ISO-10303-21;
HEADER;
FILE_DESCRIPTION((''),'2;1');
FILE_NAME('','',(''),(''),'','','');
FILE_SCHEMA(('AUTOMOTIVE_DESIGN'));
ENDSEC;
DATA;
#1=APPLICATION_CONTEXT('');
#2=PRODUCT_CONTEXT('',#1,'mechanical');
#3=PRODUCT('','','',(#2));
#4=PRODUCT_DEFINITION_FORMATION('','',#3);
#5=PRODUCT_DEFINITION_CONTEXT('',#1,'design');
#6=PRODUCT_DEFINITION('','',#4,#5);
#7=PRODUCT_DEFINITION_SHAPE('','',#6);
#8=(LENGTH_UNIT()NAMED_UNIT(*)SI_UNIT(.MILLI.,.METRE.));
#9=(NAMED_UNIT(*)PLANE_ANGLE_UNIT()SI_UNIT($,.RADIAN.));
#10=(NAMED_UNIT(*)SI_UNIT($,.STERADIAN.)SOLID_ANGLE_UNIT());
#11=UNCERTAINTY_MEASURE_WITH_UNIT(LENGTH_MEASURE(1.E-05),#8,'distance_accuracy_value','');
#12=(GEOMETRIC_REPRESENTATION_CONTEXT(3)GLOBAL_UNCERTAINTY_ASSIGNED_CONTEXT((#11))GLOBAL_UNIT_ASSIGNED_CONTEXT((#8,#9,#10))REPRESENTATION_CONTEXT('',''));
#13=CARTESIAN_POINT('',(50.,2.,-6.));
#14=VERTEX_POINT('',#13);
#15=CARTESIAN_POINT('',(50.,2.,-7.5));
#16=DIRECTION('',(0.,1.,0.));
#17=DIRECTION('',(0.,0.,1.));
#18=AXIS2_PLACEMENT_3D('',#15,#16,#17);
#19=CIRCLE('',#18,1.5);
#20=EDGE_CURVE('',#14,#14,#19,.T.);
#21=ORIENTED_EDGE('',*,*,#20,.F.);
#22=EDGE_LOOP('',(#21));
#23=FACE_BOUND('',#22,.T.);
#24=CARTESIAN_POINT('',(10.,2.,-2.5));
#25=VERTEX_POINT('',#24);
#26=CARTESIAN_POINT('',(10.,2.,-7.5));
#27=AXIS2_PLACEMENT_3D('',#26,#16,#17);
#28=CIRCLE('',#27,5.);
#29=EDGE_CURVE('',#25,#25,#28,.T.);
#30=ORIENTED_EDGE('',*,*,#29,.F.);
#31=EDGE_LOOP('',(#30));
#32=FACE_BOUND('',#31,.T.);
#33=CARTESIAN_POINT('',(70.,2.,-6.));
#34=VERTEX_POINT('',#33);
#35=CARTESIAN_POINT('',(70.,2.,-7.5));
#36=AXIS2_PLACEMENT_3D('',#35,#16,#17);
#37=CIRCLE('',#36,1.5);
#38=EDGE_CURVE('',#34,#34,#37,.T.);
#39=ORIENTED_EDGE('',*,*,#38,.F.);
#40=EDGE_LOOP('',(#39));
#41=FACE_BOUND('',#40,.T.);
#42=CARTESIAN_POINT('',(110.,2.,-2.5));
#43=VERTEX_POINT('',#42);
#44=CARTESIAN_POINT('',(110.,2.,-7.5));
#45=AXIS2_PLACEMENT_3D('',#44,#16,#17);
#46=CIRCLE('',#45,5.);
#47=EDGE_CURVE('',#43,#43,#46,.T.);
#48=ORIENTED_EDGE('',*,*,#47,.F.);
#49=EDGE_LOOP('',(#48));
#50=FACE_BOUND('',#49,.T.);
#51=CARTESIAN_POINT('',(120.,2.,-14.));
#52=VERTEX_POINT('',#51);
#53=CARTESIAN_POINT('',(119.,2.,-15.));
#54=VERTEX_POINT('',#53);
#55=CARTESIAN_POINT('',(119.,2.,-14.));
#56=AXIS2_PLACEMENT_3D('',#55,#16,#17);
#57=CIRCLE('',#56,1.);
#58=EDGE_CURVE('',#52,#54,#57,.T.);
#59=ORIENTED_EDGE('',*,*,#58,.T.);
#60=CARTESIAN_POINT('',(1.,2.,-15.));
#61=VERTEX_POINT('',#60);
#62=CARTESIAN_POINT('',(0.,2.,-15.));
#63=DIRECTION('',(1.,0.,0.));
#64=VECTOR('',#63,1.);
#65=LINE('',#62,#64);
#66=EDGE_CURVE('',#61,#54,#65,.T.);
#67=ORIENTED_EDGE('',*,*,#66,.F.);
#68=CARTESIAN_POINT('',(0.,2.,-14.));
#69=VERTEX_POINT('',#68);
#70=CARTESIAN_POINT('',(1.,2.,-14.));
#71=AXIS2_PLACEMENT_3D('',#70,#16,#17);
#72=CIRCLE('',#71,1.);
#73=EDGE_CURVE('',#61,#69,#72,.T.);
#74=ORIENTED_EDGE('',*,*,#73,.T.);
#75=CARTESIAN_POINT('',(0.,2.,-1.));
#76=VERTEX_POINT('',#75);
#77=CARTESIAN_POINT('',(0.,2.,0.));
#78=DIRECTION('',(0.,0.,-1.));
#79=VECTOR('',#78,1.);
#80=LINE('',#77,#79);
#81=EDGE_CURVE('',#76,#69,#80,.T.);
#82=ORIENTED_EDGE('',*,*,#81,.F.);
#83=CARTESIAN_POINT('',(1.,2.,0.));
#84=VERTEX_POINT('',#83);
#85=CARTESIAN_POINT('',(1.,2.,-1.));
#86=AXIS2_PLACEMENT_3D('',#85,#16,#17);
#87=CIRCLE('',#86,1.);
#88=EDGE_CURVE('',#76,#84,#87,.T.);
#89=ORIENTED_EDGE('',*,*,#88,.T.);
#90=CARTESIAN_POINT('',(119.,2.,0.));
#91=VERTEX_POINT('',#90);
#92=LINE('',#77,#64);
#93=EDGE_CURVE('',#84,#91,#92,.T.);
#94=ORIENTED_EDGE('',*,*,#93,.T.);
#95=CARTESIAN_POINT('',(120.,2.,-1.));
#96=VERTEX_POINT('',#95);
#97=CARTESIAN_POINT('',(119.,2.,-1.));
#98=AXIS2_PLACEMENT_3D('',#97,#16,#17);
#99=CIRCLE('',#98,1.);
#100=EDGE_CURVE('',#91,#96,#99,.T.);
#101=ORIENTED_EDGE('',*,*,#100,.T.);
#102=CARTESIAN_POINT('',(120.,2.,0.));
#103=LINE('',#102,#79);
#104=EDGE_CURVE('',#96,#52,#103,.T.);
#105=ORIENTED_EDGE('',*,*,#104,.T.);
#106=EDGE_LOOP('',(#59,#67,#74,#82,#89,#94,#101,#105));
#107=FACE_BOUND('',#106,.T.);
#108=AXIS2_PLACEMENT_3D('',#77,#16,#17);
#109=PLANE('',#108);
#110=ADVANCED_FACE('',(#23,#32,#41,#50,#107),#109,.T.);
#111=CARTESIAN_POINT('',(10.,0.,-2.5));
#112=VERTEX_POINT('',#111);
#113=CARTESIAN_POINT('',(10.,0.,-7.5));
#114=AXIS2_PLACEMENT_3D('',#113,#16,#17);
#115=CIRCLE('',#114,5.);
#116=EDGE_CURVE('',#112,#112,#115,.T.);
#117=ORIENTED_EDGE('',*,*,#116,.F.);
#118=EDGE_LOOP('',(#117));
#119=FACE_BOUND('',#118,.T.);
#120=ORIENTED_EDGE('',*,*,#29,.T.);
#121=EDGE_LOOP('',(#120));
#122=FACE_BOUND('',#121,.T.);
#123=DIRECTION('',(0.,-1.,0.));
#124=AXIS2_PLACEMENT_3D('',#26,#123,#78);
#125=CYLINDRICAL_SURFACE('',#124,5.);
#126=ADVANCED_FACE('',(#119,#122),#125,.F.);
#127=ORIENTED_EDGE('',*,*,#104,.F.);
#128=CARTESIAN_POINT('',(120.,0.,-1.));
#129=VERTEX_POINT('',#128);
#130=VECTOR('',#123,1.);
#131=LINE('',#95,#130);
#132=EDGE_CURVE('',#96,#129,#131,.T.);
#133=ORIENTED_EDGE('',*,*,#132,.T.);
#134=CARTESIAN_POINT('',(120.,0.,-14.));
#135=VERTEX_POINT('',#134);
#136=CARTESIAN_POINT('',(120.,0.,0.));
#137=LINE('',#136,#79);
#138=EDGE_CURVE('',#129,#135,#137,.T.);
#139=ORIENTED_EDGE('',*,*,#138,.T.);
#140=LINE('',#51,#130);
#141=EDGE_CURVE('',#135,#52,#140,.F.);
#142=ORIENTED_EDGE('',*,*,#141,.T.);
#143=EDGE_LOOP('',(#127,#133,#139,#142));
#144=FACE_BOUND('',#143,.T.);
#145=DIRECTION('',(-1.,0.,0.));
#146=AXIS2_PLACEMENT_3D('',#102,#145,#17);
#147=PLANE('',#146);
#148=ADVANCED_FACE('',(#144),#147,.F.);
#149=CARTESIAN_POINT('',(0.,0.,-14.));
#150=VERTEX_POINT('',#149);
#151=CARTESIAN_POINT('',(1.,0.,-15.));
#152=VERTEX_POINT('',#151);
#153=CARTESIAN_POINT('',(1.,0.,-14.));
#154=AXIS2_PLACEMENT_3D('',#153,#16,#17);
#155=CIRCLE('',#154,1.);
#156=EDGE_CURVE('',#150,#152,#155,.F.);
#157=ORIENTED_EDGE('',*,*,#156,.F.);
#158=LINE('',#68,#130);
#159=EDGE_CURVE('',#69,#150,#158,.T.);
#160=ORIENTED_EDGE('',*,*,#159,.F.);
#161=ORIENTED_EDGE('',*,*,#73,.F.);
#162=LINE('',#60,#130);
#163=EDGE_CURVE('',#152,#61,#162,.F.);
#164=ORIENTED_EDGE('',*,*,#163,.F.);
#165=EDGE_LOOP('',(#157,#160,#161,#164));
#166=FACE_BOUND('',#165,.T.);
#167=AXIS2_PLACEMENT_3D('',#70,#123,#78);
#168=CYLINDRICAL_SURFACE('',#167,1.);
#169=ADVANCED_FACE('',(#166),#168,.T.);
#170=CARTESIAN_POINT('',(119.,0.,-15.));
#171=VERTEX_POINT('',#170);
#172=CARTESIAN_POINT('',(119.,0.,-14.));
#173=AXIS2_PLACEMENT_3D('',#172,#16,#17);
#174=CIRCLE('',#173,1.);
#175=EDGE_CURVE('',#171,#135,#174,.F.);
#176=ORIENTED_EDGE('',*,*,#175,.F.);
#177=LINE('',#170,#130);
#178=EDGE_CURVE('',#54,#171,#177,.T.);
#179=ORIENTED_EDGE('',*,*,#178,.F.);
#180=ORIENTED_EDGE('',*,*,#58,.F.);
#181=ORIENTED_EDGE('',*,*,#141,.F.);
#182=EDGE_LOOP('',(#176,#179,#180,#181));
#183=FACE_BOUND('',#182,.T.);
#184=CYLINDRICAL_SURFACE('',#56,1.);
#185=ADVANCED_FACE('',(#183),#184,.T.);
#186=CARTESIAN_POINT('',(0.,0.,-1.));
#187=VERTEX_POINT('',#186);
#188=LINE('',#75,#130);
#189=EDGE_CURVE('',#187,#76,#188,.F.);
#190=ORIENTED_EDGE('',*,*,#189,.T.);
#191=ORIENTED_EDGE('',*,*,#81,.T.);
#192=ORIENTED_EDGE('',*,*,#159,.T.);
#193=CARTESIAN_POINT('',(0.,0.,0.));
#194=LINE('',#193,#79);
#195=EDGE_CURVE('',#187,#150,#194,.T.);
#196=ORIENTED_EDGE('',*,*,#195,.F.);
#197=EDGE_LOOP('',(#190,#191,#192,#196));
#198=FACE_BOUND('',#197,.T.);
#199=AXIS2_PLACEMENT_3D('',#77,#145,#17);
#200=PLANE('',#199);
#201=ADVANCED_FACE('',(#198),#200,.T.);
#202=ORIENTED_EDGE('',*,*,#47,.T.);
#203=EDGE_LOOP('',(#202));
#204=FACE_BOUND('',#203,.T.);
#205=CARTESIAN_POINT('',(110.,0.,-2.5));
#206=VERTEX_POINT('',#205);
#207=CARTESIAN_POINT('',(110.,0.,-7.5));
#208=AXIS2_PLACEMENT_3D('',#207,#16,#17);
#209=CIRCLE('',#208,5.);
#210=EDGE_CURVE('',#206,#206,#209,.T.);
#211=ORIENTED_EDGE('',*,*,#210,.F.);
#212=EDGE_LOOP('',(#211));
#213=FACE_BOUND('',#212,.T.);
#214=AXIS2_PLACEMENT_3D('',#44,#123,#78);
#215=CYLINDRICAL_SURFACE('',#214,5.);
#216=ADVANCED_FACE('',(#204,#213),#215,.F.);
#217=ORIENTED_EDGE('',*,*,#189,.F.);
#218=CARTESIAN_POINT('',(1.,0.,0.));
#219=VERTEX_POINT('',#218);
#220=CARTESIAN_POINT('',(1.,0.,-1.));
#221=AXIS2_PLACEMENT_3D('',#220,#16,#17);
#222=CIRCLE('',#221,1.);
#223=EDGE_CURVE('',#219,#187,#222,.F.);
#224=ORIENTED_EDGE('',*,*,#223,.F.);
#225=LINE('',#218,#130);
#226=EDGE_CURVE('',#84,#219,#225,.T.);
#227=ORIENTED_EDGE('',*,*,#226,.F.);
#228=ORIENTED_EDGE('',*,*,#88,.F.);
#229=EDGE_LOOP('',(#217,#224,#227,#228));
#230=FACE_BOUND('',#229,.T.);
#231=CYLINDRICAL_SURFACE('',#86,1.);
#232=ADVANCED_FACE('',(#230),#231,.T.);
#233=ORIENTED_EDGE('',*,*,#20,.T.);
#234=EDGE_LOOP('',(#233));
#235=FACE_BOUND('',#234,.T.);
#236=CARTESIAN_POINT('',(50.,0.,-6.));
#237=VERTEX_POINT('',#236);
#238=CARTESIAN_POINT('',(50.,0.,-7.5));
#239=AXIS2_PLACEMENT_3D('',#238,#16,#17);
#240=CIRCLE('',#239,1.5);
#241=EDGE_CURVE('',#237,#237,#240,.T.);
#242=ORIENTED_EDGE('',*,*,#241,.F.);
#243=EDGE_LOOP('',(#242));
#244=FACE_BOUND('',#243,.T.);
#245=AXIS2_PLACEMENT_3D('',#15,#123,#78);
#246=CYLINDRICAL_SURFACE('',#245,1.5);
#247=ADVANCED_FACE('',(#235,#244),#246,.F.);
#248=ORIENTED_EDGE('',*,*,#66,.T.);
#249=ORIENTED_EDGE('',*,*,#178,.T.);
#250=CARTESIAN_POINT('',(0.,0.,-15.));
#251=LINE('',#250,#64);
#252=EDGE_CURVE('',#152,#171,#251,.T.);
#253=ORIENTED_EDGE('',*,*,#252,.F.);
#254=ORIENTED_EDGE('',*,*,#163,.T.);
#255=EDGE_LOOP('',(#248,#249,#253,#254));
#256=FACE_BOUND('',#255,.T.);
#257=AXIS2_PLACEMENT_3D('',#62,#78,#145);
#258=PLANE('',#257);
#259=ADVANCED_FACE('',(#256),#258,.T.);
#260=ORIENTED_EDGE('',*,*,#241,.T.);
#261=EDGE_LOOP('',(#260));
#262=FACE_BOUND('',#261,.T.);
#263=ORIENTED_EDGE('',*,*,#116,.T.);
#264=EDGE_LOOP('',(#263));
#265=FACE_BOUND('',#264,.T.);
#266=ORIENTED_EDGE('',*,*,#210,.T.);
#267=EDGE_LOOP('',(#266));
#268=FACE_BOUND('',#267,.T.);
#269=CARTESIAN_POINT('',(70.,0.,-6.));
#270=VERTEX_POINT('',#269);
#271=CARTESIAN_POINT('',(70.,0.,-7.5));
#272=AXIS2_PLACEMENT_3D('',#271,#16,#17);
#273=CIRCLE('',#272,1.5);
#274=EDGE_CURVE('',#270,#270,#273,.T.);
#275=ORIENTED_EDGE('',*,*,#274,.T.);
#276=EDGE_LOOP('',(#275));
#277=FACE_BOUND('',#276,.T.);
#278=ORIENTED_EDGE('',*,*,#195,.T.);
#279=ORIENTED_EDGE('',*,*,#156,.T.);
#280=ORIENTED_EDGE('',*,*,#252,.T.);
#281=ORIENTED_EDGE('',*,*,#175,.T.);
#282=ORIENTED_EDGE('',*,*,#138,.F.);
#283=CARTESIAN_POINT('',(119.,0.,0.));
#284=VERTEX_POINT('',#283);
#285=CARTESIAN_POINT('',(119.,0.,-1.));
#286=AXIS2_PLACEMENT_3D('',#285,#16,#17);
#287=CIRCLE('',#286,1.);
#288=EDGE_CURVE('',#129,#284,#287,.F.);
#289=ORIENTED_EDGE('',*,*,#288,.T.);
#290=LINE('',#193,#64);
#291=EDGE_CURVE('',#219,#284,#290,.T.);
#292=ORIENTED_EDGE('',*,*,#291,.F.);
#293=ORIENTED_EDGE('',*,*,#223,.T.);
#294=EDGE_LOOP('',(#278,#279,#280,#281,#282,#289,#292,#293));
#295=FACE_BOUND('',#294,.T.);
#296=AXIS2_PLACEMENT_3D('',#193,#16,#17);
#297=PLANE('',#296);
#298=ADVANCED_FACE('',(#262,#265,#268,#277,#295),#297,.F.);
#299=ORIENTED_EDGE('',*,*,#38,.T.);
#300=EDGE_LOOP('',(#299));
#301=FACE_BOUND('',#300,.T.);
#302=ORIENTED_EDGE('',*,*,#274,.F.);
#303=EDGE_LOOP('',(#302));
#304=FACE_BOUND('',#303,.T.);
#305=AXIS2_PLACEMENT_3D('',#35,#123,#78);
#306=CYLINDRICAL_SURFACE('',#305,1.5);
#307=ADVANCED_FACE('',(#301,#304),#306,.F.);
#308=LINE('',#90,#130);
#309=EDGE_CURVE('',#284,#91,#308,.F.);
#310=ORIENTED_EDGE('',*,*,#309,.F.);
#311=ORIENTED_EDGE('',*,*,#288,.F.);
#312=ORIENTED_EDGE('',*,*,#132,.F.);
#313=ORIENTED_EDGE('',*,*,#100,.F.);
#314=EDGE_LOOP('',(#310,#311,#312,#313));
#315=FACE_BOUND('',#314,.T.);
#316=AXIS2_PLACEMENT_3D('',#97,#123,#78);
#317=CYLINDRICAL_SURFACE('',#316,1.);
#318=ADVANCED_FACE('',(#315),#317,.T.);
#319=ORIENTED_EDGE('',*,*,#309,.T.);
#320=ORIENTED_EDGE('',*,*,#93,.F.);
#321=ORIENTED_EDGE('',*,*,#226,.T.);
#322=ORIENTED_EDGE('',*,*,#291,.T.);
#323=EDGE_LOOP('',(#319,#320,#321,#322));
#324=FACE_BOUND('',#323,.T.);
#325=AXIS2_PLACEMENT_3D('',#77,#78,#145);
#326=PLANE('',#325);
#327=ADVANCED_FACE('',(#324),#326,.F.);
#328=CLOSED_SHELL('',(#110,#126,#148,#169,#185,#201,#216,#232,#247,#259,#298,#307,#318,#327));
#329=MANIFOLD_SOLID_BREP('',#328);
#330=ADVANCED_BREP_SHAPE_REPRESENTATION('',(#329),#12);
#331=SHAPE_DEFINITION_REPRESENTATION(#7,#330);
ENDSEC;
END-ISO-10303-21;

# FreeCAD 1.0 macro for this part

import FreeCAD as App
import Part
import Sketcher

V = App.Vector


def edges_at(feature, points):
    """Names of the edges that pass closest to the given points."""
    edges = feature.Shape.Edges
    near = lambda p: min(range(len(edges)), key=lambda i: edges[i].distToShape(Part.Vertex(*p))[0])
    return sorted({f"Edge{near(p) + 1}" for p in points})

doc = App.newDocument("Part")
body = doc.addObject("PartDesign::Body", "Body")

# Sketch on XZ plane
sketch1 = body.newObject("Sketcher::SketchObject", "Sketch")
sketch1.AttachmentSupport = (doc.getObject("XZ_Plane"), [""])
sketch1.MapMode = "FlatFace"
sketch1.addGeometry(Part.LineSegment(V(0, -15, 0), V(0, 0, 0)), False)
sketch1.addGeometry(Part.LineSegment(V(0, 0, 0), V(120, 0, 0)), False)
sketch1.addGeometry(Part.LineSegment(V(120, 0, 0), V(120, -15, 0)), False)
sketch1.addGeometry(Part.LineSegment(V(120, -15, 0), V(0, -15, 0)), False)
sketch1.addGeometry(Part.Circle(V(10, -7.5, 0), V(0, 0, 1), 5), False)
sketch1.addGeometry(Part.Circle(V(50, -7.5, 0), V(0, 0, 1), 1.5), False)
sketch1.addGeometry(Part.Circle(V(70, -7.5, 0), V(0, 0, 1), 1.5), False)
sketch1.addGeometry(Part.Circle(V(110, -7.5, 0), V(0, 0, 1), 5), False)
sketch1.addConstraint(Sketcher.Constraint("Coincident", 0, 2, 1, 1))
sketch1.addConstraint(Sketcher.Constraint("Coincident", 1, 2, 2, 1))
sketch1.addConstraint(Sketcher.Constraint("Coincident", 2, 2, 3, 1))
sketch1.addConstraint(Sketcher.Constraint("Coincident", 3, 2, 0, 1))
sketch1.addConstraint(Sketcher.Constraint("Vertical", 0))
sketch1.addConstraint(Sketcher.Constraint("Horizontal", 1))
sketch1.addConstraint(Sketcher.Constraint("Vertical", 2))
sketch1.addConstraint(Sketcher.Constraint("Horizontal", 3))
sketch1.addConstraint(Sketcher.Constraint("Coincident", 0, 2, -1, 1))
sketch1.addConstraint(Sketcher.Constraint("Equal", 5, 6))
sketch1.addConstraint(Sketcher.Constraint("Equal", 4, 7))
sketch1.addConstraint(Sketcher.Constraint("Horizontal", 4, 3, 5, 3))
sketch1.addConstraint(Sketcher.Constraint("Horizontal", 5, 3, 6, 3))
sketch1.addConstraint(Sketcher.Constraint("Horizontal", 6, 3, 7, 3))
sketch1.addConstraint(Sketcher.Constraint("Diameter", 4, 10.0))
sketch1.addConstraint(Sketcher.Constraint("Diameter", 5, 3.0))
sketch1.addConstraint(Sketcher.Constraint("DistanceX", 1, 1, 1, 2, 120.0))
sketch1.addConstraint(Sketcher.Constraint("DistanceY", 0, 1, 0, 2, 15.0))
sketch1.addConstraint(Sketcher.Constraint("DistanceX", -1, 1, 4, 3, 10.0))
sketch1.addConstraint(Sketcher.Constraint("DistanceX", -1, 1, 5, 3, 50.0))
sketch1.addConstraint(Sketcher.Constraint("DistanceX", -1, 1, 6, 3, 70.0))
sketch1.addConstraint(Sketcher.Constraint("DistanceX", -1, 1, 7, 3, 110.0))
sketch1.addConstraint(Sketcher.Constraint("DistanceY", 4, 3, -1, 1, 7.5))
pad1 = body.newObject("PartDesign::Pad", "Pad")
pad1.Profile = sketch1
pad1.Length = 2
pad1.Reversed = True
doc.recompute()

fillet = body.newObject("PartDesign::Fillet", "Fillet")
fillet.Base = (pad1, edges_at(pad1, [
    (120, 1, 0),
    (0, 1, 0),
    (0, 1, -15),
    (120, 1, -15),
]))
fillet.Radius = 1

doc.recompute()
